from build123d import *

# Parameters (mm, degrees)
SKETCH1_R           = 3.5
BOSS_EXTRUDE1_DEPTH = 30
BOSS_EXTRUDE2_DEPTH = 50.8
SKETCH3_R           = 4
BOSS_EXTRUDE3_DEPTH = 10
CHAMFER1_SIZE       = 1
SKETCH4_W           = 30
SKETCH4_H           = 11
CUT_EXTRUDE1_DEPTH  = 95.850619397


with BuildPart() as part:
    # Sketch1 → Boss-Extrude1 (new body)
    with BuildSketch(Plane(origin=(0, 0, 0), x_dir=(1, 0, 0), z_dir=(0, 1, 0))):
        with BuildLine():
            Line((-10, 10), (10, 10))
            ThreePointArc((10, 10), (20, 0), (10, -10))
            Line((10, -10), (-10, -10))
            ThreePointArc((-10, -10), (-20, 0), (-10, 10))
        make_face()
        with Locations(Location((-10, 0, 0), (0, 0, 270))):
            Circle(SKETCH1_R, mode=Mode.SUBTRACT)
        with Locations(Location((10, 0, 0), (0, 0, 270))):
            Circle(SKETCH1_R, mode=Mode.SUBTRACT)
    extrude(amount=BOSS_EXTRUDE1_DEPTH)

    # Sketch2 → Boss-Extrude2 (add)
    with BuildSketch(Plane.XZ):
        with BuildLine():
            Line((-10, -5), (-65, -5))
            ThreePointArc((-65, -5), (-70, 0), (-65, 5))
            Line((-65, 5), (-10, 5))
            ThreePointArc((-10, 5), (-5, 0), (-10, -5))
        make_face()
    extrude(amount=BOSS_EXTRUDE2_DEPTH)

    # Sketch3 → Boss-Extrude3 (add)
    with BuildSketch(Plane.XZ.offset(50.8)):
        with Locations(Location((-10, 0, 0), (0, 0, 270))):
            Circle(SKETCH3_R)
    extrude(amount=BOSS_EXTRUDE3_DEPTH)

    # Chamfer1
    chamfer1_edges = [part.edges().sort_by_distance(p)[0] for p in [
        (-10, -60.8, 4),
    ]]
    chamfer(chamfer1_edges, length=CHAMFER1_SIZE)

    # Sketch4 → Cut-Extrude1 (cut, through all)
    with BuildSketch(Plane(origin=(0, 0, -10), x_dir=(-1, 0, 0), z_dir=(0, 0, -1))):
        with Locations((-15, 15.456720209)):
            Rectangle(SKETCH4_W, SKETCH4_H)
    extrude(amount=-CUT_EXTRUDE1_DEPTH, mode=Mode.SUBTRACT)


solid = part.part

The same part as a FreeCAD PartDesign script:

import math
import FreeCAD as App
import Part
import Sketcher


def edges_at(feature, points):
    """Names of the edges that pass closest to the given points."""
    edges = feature.Shape.Edges
    near = lambda p: min(range(len(edges)), key=lambda i: edges[i].distToShape(Part.Vertex(*p))[0])
    return sorted({f"Edge{near(p) + 1}" for p in points})


def add_polygon(sketch, points):
    """Adds a closed chain of lines whose ends are joined by coincident constraints."""
    first, n = sketch.GeometryCount, len(points)
    for a, b in zip(points, points[1:] + points[:1]):
        sketch.addGeometry(Part.LineSegment(App.Vector(*a, 0), App.Vector(*b, 0)), False)
    for i in range(n):
        sketch.addConstraint(Sketcher.Constraint("Coincident", first + i, 2, first + (i + 1) % n, 1))

doc = App.newDocument("Part")
body = doc.addObject("PartDesign::Body", "Body")

# Sketch on XZ plane
sketch1 = body.newObject("Sketcher::SketchObject", "Sketch")
sketch1.AttachmentSupport = (doc.getObject("XZ_Plane"), [""])
sketch1.MapMode = "FlatFace"
sketch1.addGeometry([
    Part.LineSegment(App.Vector(10, -10, 0), App.Vector(-10, -10, 0)),  # 0
    Part.ArcOfCircle(Part.Circle(App.Vector(-10, 0, 0), App.Vector(0, 0, 1), 10), math.radians(90), math.radians(270)),  # 1
    Part.LineSegment(App.Vector(-10, 10, 0), App.Vector(10, 10, 0)),  # 2
    Part.ArcOfCircle(Part.Circle(App.Vector(10, 0, 0), App.Vector(0, 0, 1), 10), math.radians(-90), math.radians(90)),  # 3
    Part.Circle(App.Vector(10, 0, 0), App.Vector(0, 0, 1), 3.5),  # 4
    Part.Circle(App.Vector(-10, 0, 0), App.Vector(0, 0, 1), 3.5),  # 5
], False)
sketch1.addConstraint([
    Sketcher.Constraint("Tangent", 0, 2, 1, 2),
    Sketcher.Constraint("Tangent", 1, 1, 2, 1),
    Sketcher.Constraint("Tangent", 2, 2, 3, 2),
    Sketcher.Constraint("Tangent", 3, 1, 0, 1),
    Sketcher.Constraint("Horizontal", 0),
    Sketcher.Constraint("Horizontal", 2),
    Sketcher.Constraint("Coincident", 4, 3, 3, 3),
    Sketcher.Constraint("Coincident", 5, 3, 1, 3),
    Sketcher.Constraint("Equal", 4, 5),
    Sketcher.Constraint("Symmetric", 1, 3, 3, 3, -1, 1),
    Sketcher.Constraint("Diameter", 4, 7.0),
    Sketcher.Constraint("Radius", 1, 10.0),
    Sketcher.Constraint("DistanceX", 0, 2, 0, 1, 20.0),
])
pad1 = body.newObject("PartDesign::Pad", "Pad")
pad1.Profile = sketch1
pad1.Length = 30
pad1.Reversed = True

# Sketch on XZ plane
sketch2 = body.newObject("Sketcher::SketchObject", "Sketch001")
sketch2.AttachmentSupport = (doc.getObject("XZ_Plane"), [""])
sketch2.MapMode = "FlatFace"
sketch2.addGeometry([
    Part.LineSegment(App.Vector(-65, -5, 0), App.Vector(-10, -5, 0)),
    Part.ArcOfCircle(Part.Circle(App.Vector(-10, 0, 0), App.Vector(0, 0, 1), 5), math.radians(-90), math.radians(90)),
    Part.LineSegment(App.Vector(-10, 5, 0), App.Vector(-65, 5, 0)),
    Part.ArcOfCircle(Part.Circle(App.Vector(-65, 0, 0), App.Vector(0, 0, 1), 5), math.radians(90), math.radians(270)),
], False)
sketch2.addConstraint([
    Sketcher.Constraint("Tangent", 0, 2, 1, 1),
    Sketcher.Constraint("Tangent", 1, 2, 2, 1),
    Sketcher.Constraint("Tangent", 2, 2, 3, 1),
    Sketcher.Constraint("Tangent", 3, 2, 0, 1),
    Sketcher.Constraint("Horizontal", 0),
    Sketcher.Constraint("Horizontal", 2),
    Sketcher.Constraint("PointOnObject", 1, 3, -1),
    Sketcher.Constraint("Radius", 1, 5.0),
    Sketcher.Constraint("DistanceX", 0, 1, 0, 2, 55.0),
    Sketcher.Constraint("DistanceX", 1, 3, -1, 1, 10.0),
])
pad2 = body.newObject("PartDesign::Pad", "Pad001")
pad2.Profile = sketch2
pad2.Length = 50.8

# Sketch on XZ plane
sketch3 = body.newObject("Sketcher::SketchObject", "Sketch002")
sketch3.AttachmentSupport = (doc.getObject("XZ_Plane"), [""])
sketch3.MapMode = "FlatFace"
sketch3.AttachmentOffset = App.Placement(App.Vector(0, 0, 50.8), App.Rotation())
sketch3.addGeometry(Part.Circle(App.Vector(-10, 0, 0), App.Vector(0, 0, 1), 4), False)
sketch3.addConstraint([
    Sketcher.Constraint("PointOnObject", 0, 3, -1),
    Sketcher.Constraint("Diameter", 0, 8.0),
    Sketcher.Constraint("DistanceX", 0, 3, -1, 1, 10.0),
])
pad3 = body.newObject("PartDesign::Pad", "Pad002")
pad3.Profile = sketch3
pad3.Length = 10
doc.recompute()

chamfer = body.newObject("PartDesign::Chamfer", "Chamfer")
chamfer.Base = (pad3, edges_at(pad3, [(-10, -60.8, 4)]))
chamfer.Size = 1

# Sketch on XY plane
sketch4 = body.newObject("Sketcher::SketchObject", "Sketch003")
sketch4.AttachmentSupport = (doc.getObject("XY_Plane"), [""])
sketch4.MapMode = "FlatFace"
sketch4.AttachmentOffset = App.Placement(App.Vector(0, 0, -10), App.Rotation())
add_polygon(sketch4, [(30, 21), (30, 10), (0, 10), (0, 21)])  # lines 0-3
sketch4.addConstraint([
    Sketcher.Constraint("Vertical", 0),
    Sketcher.Constraint("Horizontal", 1),
    Sketcher.Constraint("Vertical", 2),
    Sketcher.Constraint("Horizontal", 3),
    Sketcher.Constraint("PointOnObject", 1, 2, -2),
    Sketcher.Constraint("DistanceX", 1, 2, 1, 1, 30.0),
    Sketcher.Constraint("DistanceY", 0, 2, 0, 1, 11.0),
    Sketcher.Constraint("DistanceY", -1, 1, 0, 2, 9.95672),
])
pocket1 = body.newObject("PartDesign::Pocket", "Pocket")
pocket1.Profile = sketch4
pocket1.Type = "ThroughAll"
pocket1.Reversed = True

doc.recompute()
